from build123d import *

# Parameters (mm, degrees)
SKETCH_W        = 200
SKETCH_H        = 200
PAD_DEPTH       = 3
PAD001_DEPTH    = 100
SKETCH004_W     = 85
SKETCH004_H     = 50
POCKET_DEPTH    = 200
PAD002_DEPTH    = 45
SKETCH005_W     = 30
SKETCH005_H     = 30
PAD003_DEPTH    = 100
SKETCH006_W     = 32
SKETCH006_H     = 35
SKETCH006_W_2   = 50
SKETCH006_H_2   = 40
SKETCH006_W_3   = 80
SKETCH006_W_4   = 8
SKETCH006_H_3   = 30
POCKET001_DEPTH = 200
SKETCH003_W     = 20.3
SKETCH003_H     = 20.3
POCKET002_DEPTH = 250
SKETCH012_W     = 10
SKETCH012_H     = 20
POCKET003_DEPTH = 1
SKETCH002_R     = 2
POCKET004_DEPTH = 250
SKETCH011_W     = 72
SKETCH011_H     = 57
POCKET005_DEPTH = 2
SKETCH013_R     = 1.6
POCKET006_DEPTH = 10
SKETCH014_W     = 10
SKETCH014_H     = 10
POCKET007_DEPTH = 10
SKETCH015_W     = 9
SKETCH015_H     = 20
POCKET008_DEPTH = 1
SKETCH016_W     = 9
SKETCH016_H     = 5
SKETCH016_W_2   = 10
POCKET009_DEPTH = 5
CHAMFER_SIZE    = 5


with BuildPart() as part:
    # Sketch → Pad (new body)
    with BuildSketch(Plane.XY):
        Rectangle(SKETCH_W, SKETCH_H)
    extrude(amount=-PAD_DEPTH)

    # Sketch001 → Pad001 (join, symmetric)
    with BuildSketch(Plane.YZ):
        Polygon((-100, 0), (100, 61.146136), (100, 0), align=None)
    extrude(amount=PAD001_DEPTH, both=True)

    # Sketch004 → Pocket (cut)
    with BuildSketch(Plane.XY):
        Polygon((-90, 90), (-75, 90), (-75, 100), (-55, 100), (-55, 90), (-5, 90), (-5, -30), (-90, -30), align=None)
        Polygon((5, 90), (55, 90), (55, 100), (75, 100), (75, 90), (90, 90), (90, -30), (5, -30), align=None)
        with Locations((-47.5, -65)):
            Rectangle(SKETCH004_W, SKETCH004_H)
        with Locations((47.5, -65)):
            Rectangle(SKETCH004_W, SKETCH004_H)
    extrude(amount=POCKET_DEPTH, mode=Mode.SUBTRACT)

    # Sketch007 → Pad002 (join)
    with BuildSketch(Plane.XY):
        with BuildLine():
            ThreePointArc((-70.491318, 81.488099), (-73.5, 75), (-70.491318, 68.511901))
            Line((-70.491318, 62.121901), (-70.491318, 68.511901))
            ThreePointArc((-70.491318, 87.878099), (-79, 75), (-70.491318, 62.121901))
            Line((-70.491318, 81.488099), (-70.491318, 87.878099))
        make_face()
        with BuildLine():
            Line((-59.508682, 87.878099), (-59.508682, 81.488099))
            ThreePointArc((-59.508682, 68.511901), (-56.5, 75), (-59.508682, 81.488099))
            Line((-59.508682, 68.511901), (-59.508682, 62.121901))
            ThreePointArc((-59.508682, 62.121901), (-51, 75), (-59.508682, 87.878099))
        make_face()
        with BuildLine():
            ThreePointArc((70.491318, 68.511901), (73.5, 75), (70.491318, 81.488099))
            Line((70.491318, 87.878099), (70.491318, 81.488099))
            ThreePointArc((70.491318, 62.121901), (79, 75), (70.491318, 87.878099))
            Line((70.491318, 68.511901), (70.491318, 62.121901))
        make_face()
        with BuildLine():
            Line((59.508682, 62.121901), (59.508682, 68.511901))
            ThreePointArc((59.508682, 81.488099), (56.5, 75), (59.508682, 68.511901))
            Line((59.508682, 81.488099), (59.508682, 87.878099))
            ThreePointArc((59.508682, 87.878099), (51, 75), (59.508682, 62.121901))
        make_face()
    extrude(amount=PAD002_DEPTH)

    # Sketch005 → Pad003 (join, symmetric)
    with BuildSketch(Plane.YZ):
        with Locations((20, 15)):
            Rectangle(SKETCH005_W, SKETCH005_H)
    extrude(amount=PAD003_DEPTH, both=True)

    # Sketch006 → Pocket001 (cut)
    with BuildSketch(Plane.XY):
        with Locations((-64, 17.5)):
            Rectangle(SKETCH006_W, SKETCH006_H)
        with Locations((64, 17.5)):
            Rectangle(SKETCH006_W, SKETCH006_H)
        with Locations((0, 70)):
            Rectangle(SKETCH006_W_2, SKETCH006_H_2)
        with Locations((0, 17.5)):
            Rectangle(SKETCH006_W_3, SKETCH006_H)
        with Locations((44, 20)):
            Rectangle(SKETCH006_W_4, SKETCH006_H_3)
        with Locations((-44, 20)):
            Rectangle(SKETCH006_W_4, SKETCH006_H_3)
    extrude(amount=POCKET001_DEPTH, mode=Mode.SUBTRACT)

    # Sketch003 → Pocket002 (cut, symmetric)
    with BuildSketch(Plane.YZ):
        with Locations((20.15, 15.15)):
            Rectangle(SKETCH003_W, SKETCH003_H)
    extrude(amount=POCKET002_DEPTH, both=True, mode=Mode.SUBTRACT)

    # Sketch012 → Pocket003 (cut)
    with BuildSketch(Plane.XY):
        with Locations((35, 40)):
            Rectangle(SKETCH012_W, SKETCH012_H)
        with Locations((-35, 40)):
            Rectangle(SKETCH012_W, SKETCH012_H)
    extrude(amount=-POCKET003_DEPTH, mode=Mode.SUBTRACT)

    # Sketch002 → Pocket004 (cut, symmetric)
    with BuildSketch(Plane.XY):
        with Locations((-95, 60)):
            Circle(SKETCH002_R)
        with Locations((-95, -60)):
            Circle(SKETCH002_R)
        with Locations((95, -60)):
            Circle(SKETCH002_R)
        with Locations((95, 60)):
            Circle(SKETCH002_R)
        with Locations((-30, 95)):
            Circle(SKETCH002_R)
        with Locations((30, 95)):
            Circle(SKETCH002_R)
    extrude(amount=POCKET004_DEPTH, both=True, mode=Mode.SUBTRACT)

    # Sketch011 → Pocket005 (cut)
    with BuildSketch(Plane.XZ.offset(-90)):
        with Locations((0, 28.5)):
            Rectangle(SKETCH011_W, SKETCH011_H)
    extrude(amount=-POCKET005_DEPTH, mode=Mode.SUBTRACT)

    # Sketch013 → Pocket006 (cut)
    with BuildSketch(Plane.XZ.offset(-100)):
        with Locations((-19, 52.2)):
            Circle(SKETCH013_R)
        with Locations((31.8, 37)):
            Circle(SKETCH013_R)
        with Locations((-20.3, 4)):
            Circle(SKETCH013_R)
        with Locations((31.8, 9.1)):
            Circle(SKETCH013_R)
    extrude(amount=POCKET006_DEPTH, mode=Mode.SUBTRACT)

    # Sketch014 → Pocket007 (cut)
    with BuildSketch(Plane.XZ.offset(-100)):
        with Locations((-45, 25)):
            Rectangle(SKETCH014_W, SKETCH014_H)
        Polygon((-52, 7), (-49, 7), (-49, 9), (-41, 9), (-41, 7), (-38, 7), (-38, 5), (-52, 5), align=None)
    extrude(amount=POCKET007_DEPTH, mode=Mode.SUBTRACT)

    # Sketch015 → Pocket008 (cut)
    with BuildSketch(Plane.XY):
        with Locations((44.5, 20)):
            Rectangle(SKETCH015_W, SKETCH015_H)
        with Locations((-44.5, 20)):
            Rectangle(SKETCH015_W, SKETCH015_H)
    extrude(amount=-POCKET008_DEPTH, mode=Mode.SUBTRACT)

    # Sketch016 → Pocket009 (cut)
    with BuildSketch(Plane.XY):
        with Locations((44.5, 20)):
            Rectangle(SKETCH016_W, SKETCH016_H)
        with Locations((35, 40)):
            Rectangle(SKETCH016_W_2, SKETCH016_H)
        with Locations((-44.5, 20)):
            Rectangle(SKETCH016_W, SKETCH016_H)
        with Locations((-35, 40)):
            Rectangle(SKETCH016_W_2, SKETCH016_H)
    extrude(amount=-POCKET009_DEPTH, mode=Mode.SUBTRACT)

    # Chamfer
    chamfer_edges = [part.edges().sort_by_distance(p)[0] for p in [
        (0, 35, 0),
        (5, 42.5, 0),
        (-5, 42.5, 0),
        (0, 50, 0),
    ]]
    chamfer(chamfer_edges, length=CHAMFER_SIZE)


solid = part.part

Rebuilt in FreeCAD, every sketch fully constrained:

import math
import FreeCAD as App
import Part
import Sketcher
Q = App.Units.Quantity


def edges_at(feature, points):
    """Names of the edges that pass closest to the given points."""
    edges = feature.Shape.Edges
    near = lambda p: min(range(len(edges)), key=lambda i: edges[i].distToShape(Part.Vertex(*p))[0])
    return sorted({f"Edge{near(p) + 1}" for p in points})


def add_polygon(sketch, points):
    """Adds a closed chain of lines whose ends are joined by coincident constraints."""
    first, n = sketch.GeometryCount, len(points)
    for a, b in zip(points, points[1:] + points[:1]):
        sketch.addGeometry(Part.LineSegment(App.Vector(*a, 0), App.Vector(*b, 0)), False)
    for i in range(n):
        sketch.addConstraint(Sketcher.Constraint("Coincident", first + i, 2, first + (i + 1) % n, 1))

doc = App.newDocument("Part")
body = doc.addObject("PartDesign::Body", "Body")

# Sketch on XY plane
sketch1 = body.newObject("Sketcher::SketchObject", "Sketch")
sketch1.AttachmentSupport = (doc.getObject("XY_Plane"), [""])
sketch1.MapMode = "FlatFace"
add_polygon(sketch1, [(-100, 100), (-100, -100), (100, -100), (100, 100)])  # lines 0-3
sketch1.addConstraint(Sketcher.Constraint("Vertical", 0))
sketch1.addConstraint(Sketcher.Constraint("Horizontal", 1))
sketch1.addConstraint(Sketcher.Constraint("Vertical", 2))
sketch1.addConstraint(Sketcher.Constraint("Horizontal", 3))
sketch1.addConstraint(Sketcher.Constraint("Symmetric", 0, 2, 2, 2, -1, 1))
sketch1.addConstraint(Sketcher.Constraint("Equal", 3, 0))
sketch1.addConstraint(Sketcher.Constraint("DistanceX", 1, 1, 1, 2, Q("200 mm")))
pad1 = body.newObject("PartDesign::Pad", "Pad")
pad1.Profile = sketch1
pad1.Length = 3
pad1.Reversed = True

# Sketch on YZ plane
sketch2 = body.newObject("Sketcher::SketchObject", "Sketch001")
sketch2.AttachmentSupport = (doc.getObject("YZ_Plane"), [""])
sketch2.MapMode = "FlatFace"
add_polygon(sketch2, [(100, 61), (-100, 0), (100, 0)])  # lines 0-2
sketch2.addConstraint(Sketcher.Constraint("Horizontal", 1))
sketch2.addConstraint(Sketcher.Constraint("Vertical", 2))
sketch2.addConstraint(Sketcher.Constraint("Symmetric", 0, 2, 1, 2, -1, 1))
sketch2.addConstraint(Sketcher.Constraint("DistanceX", 1, 1, 1, 2, Q("200 mm")))
sketch2.addConstraint(Sketcher.Constraint("Angle", 0, Q("-163 deg")))
pad2 = body.newObject("PartDesign::Pad", "Pad001")
pad2.Profile = sketch2
pad2.Length = 200
pad2.Midplane = True

# Sketch on XY plane
sketch3 = body.newObject("Sketcher::SketchObject", "Sketch002")
sketch3.AttachmentSupport = (doc.getObject("XY_Plane"), [""])
sketch3.MapMode = "FlatFace"
add_polygon(sketch3, [(-75, 90), (-90, 90), (-90, -30), (-5, -30), (-5, 90), (-55, 90), (-55, 100), (-75, 100)])  # lines 0-7
add_polygon(sketch3, [(55, 90), (5, 90), (5, -30), (90, -30), (90, 90), (75, 90), (75, 100), (55, 100)])  # lines 8-15
add_polygon(sketch3, [(-90, -40), (-90, -90), (-5, -90), (-5, -40)])  # lines 16-19
add_polygon(sketch3, [(5, -40), (5, -90), (90, -90), (90, -40)])  # lines 20-23
sketch3.addConstraint(Sketcher.Constraint("Horizontal", 0))
sketch3.addConstraint(Sketcher.Constraint("Vertical", 1))
sketch3.addConstraint(Sketcher.Constraint("Horizontal", 2))
sketch3.addConstraint(Sketcher.Constraint("Vertical", 3))
sketch3.addConstraint(Sketcher.Constraint("Horizontal", 4))
sketch3.addConstraint(Sketcher.Constraint("Vertical", 5))
sketch3.addConstraint(Sketcher.Constraint("Horizontal", 6))
sketch3.addConstraint(Sketcher.Constraint("Vertical", 7))
sketch3.addConstraint(Sketcher.Constraint("Horizontal", 8))
sketch3.addConstraint(Sketcher.Constraint("Vertical", 9))
sketch3.addConstraint(Sketcher.Constraint("Horizontal", 10))
sketch3.addConstraint(Sketcher.Constraint("Vertical", 11))
sketch3.addConstraint(Sketcher.Constraint("Horizontal", 12))
sketch3.addConstraint(Sketcher.Constraint("Vertical", 13))
sketch3.addConstraint(Sketcher.Constraint("Horizontal", 14))
sketch3.addConstraint(Sketcher.Constraint("Vertical", 15))
sketch3.addConstraint(Sketcher.Constraint("Vertical", 16))
sketch3.addConstraint(Sketcher.Constraint("Horizontal", 17))
sketch3.addConstraint(Sketcher.Constraint("Vertical", 18))
sketch3.addConstraint(Sketcher.Constraint("Horizontal", 19))
sketch3.addConstraint(Sketcher.Constraint("Vertical", 20))
sketch3.addConstraint(Sketcher.Constraint("Horizontal", 21))
sketch3.addConstraint(Sketcher.Constraint("Vertical", 22))
sketch3.addConstraint(Sketcher.Constraint("Horizontal", 23))
sketch3.addConstraint(Sketcher.Constraint("Symmetric", 11, 2, 16, 2, -1, 1))
sketch3.addConstraint(Sketcher.Constraint("Symmetric", 8, 2, 17, 2, -1, 1))
sketch3.addConstraint(Sketcher.Constraint("Symmetric", 3, 2, 20, 2, -1, 1))
sketch3.addConstraint(Sketcher.Constraint("Symmetric", 0, 2, 21, 2, -1, 1))
sketch3.addConstraint(Sketcher.Constraint("Symmetric", 3, 2, 8, 2, -2))
sketch3.addConstraint(Sketcher.Constraint("Symmetric", 1, 2, 10, 2, -2))
sketch3.addConstraint(Sketcher.Constraint("Symmetric", 6, 2, 13, 2, -2))
sketch3.addConstraint(Sketcher.Constraint("Horizontal", 19, 2, 22, 2))
sketch3.addConstraint(Sketcher.Constraint("Equal", 4, 8))
sketch3.addConstraint(Sketcher.Constraint("Equal", 8, 16))
sketch3.addConstraint(Sketcher.Constraint("DistanceX", 0, 2, 0, 1, Q("15 mm")))
sketch3.addConstraint(Sketcher.Constraint("DistanceX", 2, 1, 2, 2, Q("85 mm")))
sketch3.addConstraint(Sketcher.Constraint("DistanceX", 4, 2, 4, 1, Q("50 mm")))
sketch3.addConstraint(Sketcher.Constraint("DistanceY", 1, 2, 1, 1, Q("120 mm")))
sketch3.addConstraint(Sketcher.Constraint("DistanceY", 5, 1, 5, 2, Q("10 mm")))
sketch3.addConstraint(Sketcher.Constraint("DistanceX", 0, 2, -1, 1, Q("90 mm")))
sketch3.addConstraint(Sketcher.Constraint("DistanceY", -1, 1, 0, 2, Q("90 mm")))
pocket1 = body.newObject("PartDesign::Pocket", "Pocket")
pocket1.Profile = sketch3
pocket1.Length = 200
pocket1.Reversed = True

# Sketch on XY plane
sketch4 = body.newObject("Sketcher::SketchObject", "Sketch003")
sketch4.AttachmentSupport = (doc.getObject("XY_Plane"), [""])
sketch4.MapMode = "FlatFace"
sketch4.addGeometry(Part.ArcOfCircle(Part.Circle(App.Vector(-65, 75, 0), App.Vector(0, 0, 1), 9), math.radians(130), math.radians(230)), False)
sketch4.addGeometry(Part.LineSegment(App.Vector(-70, 81, 0), App.Vector(-70, 88, 0)), False)
sketch4.addGeometry(Part.ArcOfCircle(Part.Circle(App.Vector(-65, 75, 0), App.Vector(0, 0, 1), 14), math.radians(113), math.radians(247)), False)
sketch4.addGeometry(Part.LineSegment(App.Vector(-70, 62, 0), App.Vector(-70, 69, 0)), False)
sketch4.addGeometry(Part.LineSegment(App.Vector(-60, 88, 0), App.Vector(-60, 81, 0)), False)
sketch4.addGeometry(Part.ArcOfCircle(Part.Circle(App.Vector(-65, 75, 0), App.Vector(0, 0, 1), 9), math.radians(-50), math.radians(50)), False)
sketch4.addGeometry(Part.LineSegment(App.Vector(-60, 69, 0), App.Vector(-60, 62, 0)), False)
sketch4.addGeometry(Part.ArcOfCircle(Part.Circle(App.Vector(-65, 75, 0), App.Vector(0, 0, 1), 14), math.radians(-67), math.radians(67)), False)
sketch4.addGeometry(Part.ArcOfCircle(Part.Circle(App.Vector(65, 75, 0), App.Vector(0, 0, 1), 9), math.radians(-50), math.radians(50)), False)
sketch4.addGeometry(Part.LineSegment(App.Vector(70, 69, 0), App.Vector(70, 62, 0)), False)
sketch4.addGeometry(Part.ArcOfCircle(Part.Circle(App.Vector(65, 75, 0), App.Vector(0, 0, 1), 14), math.radians(-67), math.radians(67)), False)
sketch4.addGeometry(Part.LineSegment(App.Vector(70, 88, 0), App.Vector(70, 81, 0)), False)
sketch4.addGeometry(Part.LineSegment(App.Vector(60, 62, 0), App.Vector(60, 69, 0)), False)
sketch4.addGeometry(Part.ArcOfCircle(Part.Circle(App.Vector(65, 75, 0), App.Vector(0, 0, 1), 9), math.radians(130), math.radians(230)), False)
sketch4.addGeometry(Part.LineSegment(App.Vector(60, 81, 0), App.Vector(60, 88, 0)), False)
sketch4.addGeometry(Part.ArcOfCircle(Part.Circle(App.Vector(65, 75, 0), App.Vector(0, 0, 1), 14), math.radians(113), math.radians(247)), False)
sketch4.addConstraint(Sketcher.Constraint("Coincident", 0, 1, 1, 1))
sketch4.addConstraint(Sketcher.Constraint("Coincident", 1, 2, 2, 1))
sketch4.addConstraint(Sketcher.Constraint("Coincident", 2, 2, 3, 1))
sketch4.addConstraint(Sketcher.Constraint("Coincident", 3, 2, 0, 2))
sketch4.addConstraint(Sketcher.Constraint("Coincident", 4, 2, 5, 2))
sketch4.addConstraint(Sketcher.Constraint("Coincident", 5, 1, 6, 1))
sketch4.addConstraint(Sketcher.Constraint("Coincident", 6, 2, 7, 1))
sketch4.addConstraint(Sketcher.Constraint("Coincident", 7, 2, 4, 1))
sketch4.addConstraint(Sketcher.Constraint("Coincident", 8, 1, 9, 1))
sketch4.addConstraint(Sketcher.Constraint("Coincident", 9, 2, 10, 1))
sketch4.addConstraint(Sketcher.Constraint("Coincident", 10, 2, 11, 1))
sketch4.addConstraint(Sketcher.Constraint("Coincident", 11, 2, 8, 2))
sketch4.addConstraint(Sketcher.Constraint("Coincident", 12, 2, 13, 2))
sketch4.addConstraint(Sketcher.Constraint("Coincident", 13, 1, 14, 1))
sketch4.addConstraint(Sketcher.Constraint("Coincident", 14, 2, 15, 1))
sketch4.addConstraint(Sketcher.Constraint("Coincident", 15, 2, 12, 1))
sketch4.addConstraint(Sketcher.Constraint("Vertical", 1))
sketch4.addConstraint(Sketcher.Constraint("Vertical", 3))
sketch4.addConstraint(Sketcher.Constraint("Vertical", 4))
sketch4.addConstraint(Sketcher.Constraint("Vertical", 6))
sketch4.addConstraint(Sketcher.Constraint("Vertical", 9))
sketch4.addConstraint(Sketcher.Constraint("Vertical", 11))
sketch4.addConstraint(Sketcher.Constraint("Vertical", 12))
sketch4.addConstraint(Sketcher.Constraint("Vertical", 14))
sketch4.addConstraint(Sketcher.Constraint("Coincident", 2, 3, 0, 3))
sketch4.addConstraint(Sketcher.Constraint("Coincident", 5, 3, 0, 3))
sketch4.addConstraint(Sketcher.Constraint("Coincident", 7, 3, 0, 3))
sketch4.addConstraint(Sketcher.Constraint("Coincident", 10, 3, 8, 3))
sketch4.addConstraint(Sketcher.Constraint("Coincident", 13, 3, 8, 3))
sketch4.addConstraint(Sketcher.Constraint("Coincident", 15, 3, 8, 3))
sketch4.addConstraint(Sketcher.Constraint("Equal", 0, 5))
sketch4.addConstraint(Sketcher.Constraint("Equal", 2, 7))
sketch4.addConstraint(Sketcher.Constraint("Equal", 5, 8))
sketch4.addConstraint(Sketcher.Constraint("Equal", 7, 10))
sketch4.addConstraint(Sketcher.Constraint("Equal", 8, 13))
sketch4.addConstraint(Sketcher.Constraint("Equal", 10, 15))
sketch4.addConstraint(Sketcher.Constraint("Symmetric", 0, 3, 8, 3, -2))
sketch4.addConstraint(Sketcher.Constraint("Horizontal", 0, 1, 4, 2))
sketch4.addConstraint(Sketcher.Constraint("Horizontal", 3, 2, 5, 1))
sketch4.addConstraint(Sketcher.Constraint("Horizontal", 5, 1, 8, 1))
sketch4.addConstraint(Sketcher.Constraint("Horizontal", 7, 2, 10, 2))
sketch4.addConstraint(Sketcher.Constraint("Horizontal", 8, 1, 12, 2))
sketch4.addConstraint(Sketcher.Constraint("Horizontal", 11, 2, 13, 1))
sketch4.addConstraint(Sketcher.Constraint("Vertical", 1, 2, 2, 2))
sketch4.addConstraint(Sketcher.Constraint("Radius", 2, Q("14 mm")))
sketch4.addConstraint(Sketcher.Constraint("Radius", 0, Q("8.5 mm")))
sketch4.addConstraint(Sketcher.Constraint("DistanceX", 0, 3, -1, 1, Q("65 mm")))
sketch4.addConstraint(Sketcher.Constraint("DistanceY", -1, 1, 0, 3, Q("75 mm")))
sketch4.addConstraint(Sketcher.Constraint("DistanceY", 1, 1, 1, 2, Q("6.39 mm")))
pad3 = body.newObject("PartDesign::Pad", "Pad002")
pad3.Profile = sketch4
pad3.Length = 45

# Sketch on YZ plane
sketch5 = body.newObject("Sketcher::SketchObject", "Sketch004")
sketch5.AttachmentSupport = (doc.getObject("YZ_Plane"), [""])
sketch5.MapMode = "FlatFace"
add_polygon(sketch5, [(5, 30), (5, 0), (35, 0), (35, 30)])  # lines 0-3
sketch5.addConstraint(Sketcher.Constraint("Vertical", 0))
sketch5.addConstraint(Sketcher.Constraint("Horizontal", 1))
sketch5.addConstraint(Sketcher.Constraint("Vertical", 2))
sketch5.addConstraint(Sketcher.Constraint("Horizontal", 3))
sketch5.addConstraint(Sketcher.Constraint("PointOnObject", 0, 2, -1))
sketch5.addConstraint(Sketcher.Constraint("Equal", 3, 0))
sketch5.addConstraint(Sketcher.Constraint("DistanceX", 1, 1, 1, 2, Q("30 mm")))
sketch5.addConstraint(Sketcher.Constraint("DistanceX", -1, 1, 0, 2, Q("5 mm")))
pad4 = body.newObject("PartDesign::Pad", "Pad003")
pad4.Profile = sketch5
pad4.Length = 200
pad4.Midplane = True

# Sketch on XY plane
sketch6 = body.newObject("Sketcher::SketchObject", "Sketch005")
sketch6.AttachmentSupport = (doc.getObject("XY_Plane"), [""])
sketch6.MapMode = "FlatFace"
add_polygon(sketch6, [(-80, 35), (-80, 0), (-48, 0), (-48, 5), (-40, 5), (-40, 0), (40, 0), (40, 5), (48, 5), (48, 0), (80, 0), (80, 35)])  # lines 0-11
add_polygon(sketch6, [(-25, 90), (-25, 50), (25, 50), (25, 90)])  # lines 12-15
sketch6.addConstraint(Sketcher.Constraint("Vertical", 0))
sketch6.addConstraint(Sketcher.Constraint("Horizontal", 1))
sketch6.addConstraint(Sketcher.Constraint("Vertical", 2))
sketch6.addConstraint(Sketcher.Constraint("Horizontal", 3))
sketch6.addConstraint(Sketcher.Constraint("Vertical", 4))
sketch6.addConstraint(Sketcher.Constraint("Horizontal", 5))
sketch6.addConstraint(Sketcher.Constraint("Vertical", 6))
sketch6.addConstraint(Sketcher.Constraint("Horizontal", 7))
sketch6.addConstraint(Sketcher.Constraint("Vertical", 8))
sketch6.addConstraint(Sketcher.Constraint("Horizontal", 9))
sketch6.addConstraint(Sketcher.Constraint("Vertical", 10))
sketch6.addConstraint(Sketcher.Constraint("Horizontal", 11))
sketch6.addConstraint(Sketcher.Constraint("Vertical", 12))
sketch6.addConstraint(Sketcher.Constraint("Horizontal", 13))
sketch6.addConstraint(Sketcher.Constraint("Vertical", 14))
sketch6.addConstraint(Sketcher.Constraint("Horizontal", 15))
sketch6.addConstraint(Sketcher.Constraint("Symmetric", 4, 2, 5, 2, -1, 1))
sketch6.addConstraint(Sketcher.Constraint("Symmetric", 1, 2, 8, 2, -1, 1))
sketch6.addConstraint(Sketcher.Constraint("Symmetric", 0, 2, 9, 2, -2))
sketch6.addConstraint(Sketcher.Constraint("Horizontal", 3, 2, 6, 2))
sketch6.addConstraint(Sketcher.Constraint("DistanceX", 1, 1, 1, 2, Q("32 mm")))
sketch6.addConstraint(Sketcher.Constraint("DistanceX", 3, 1, 3, 2, Q("8 mm")))
sketch6.addConstraint(Sketcher.Constraint("DistanceX", 5, 1, 5, 2, Q("80 mm")))
sketch6.addConstraint(Sketcher.Constraint("DistanceX", 13, 1, 13, 2, Q("50 mm")))
sketch6.addConstraint(Sketcher.Constraint("DistanceY", 0, 2, 0, 1, Q("35 mm")))
sketch6.addConstraint(Sketcher.Constraint("DistanceY", 2, 1, 2, 2, Q("5 mm")))
sketch6.addConstraint(Sketcher.Constraint("DistanceY", 12, 2, 12, 1, Q("40 mm")))
sketch6.addConstraint(Sketcher.Constraint("DistanceX", 12, 2, -1, 1, Q("25 mm")))
sketch6.addConstraint(Sketcher.Constraint("DistanceY", -1, 1, 12, 2, Q("50 mm")))
pocket2 = body.newObject("PartDesign::Pocket", "Pocket001")
pocket2.Profile = sketch6
pocket2.Length = 200
pocket2.Reversed = True

# Sketch on YZ plane
sketch7 = body.newObject("Sketcher::SketchObject", "Sketch006")
sketch7.AttachmentSupport = (doc.getObject("YZ_Plane"), [""])
sketch7.MapMode = "FlatFace"
add_polygon(sketch7, [(10, 25), (10, 5), (30, 5), (30, 25)])  # lines 0-3
sketch7.addConstraint(Sketcher.Constraint("Vertical", 0))
sketch7.addConstraint(Sketcher.Constraint("Horizontal", 1))
sketch7.addConstraint(Sketcher.Constraint("Vertical", 2))
sketch7.addConstraint(Sketcher.Constraint("Horizontal", 3))
sketch7.addConstraint(Sketcher.Constraint("Equal", 3, 0))
sketch7.addConstraint(Sketcher.Constraint("DistanceX", 1, 1, 1, 2, Q("20.3 mm")))
sketch7.addConstraint(Sketcher.Constraint("DistanceX", -1, 1, 0, 2, Q("10 mm")))
sketch7.addConstraint(Sketcher.Constraint("DistanceY", -1, 1, 0, 2, Q("5 mm")))
pocket3 = body.newObject("PartDesign::Pocket", "Pocket002")
pocket3.Profile = sketch7
pocket3.Length = 500
pocket3.Midplane = True

# Sketch on XY plane
sketch8 = body.newObject("Sketcher::SketchObject", "Sketch007")
sketch8.AttachmentSupport = (doc.getObject("XY_Plane"), [""])
sketch8.MapMode = "FlatFace"
add_polygon(sketch8, [(30, 50), (30, 30), (40, 30), (40, 50)])  # lines 0-3
add_polygon(sketch8, [(-40, 50), (-40, 30), (-30, 30), (-30, 50)])  # lines 4-7
sketch8.addConstraint(Sketcher.Constraint("Vertical", 0))
sketch8.addConstraint(Sketcher.Constraint("Horizontal", 1))
sketch8.addConstraint(Sketcher.Constraint("Vertical", 2))
sketch8.addConstraint(Sketcher.Constraint("Horizontal", 3))
sketch8.addConstraint(Sketcher.Constraint("Vertical", 4))
sketch8.addConstraint(Sketcher.Constraint("Horizontal", 5))
sketch8.addConstraint(Sketcher.Constraint("Vertical", 6))
sketch8.addConstraint(Sketcher.Constraint("Horizontal", 7))
sketch8.addConstraint(Sketcher.Constraint("Symmetric", 1, 2, 4, 2, -2))
sketch8.addConstraint(Sketcher.Constraint("Symmetric", 3, 2, 6, 2, -2))
sketch8.addConstraint(Sketcher.Constraint("DistanceX", 1, 1, 1, 2, Q("10 mm")))
sketch8.addConstraint(Sketcher.Constraint("DistanceY", 0, 2, 0, 1, Q("20 mm")))
sketch8.addConstraint(Sketcher.Constraint("DistanceX", -1, 1, 0, 2, Q("30 mm")))
sketch8.addConstraint(Sketcher.Constraint("DistanceY", -1, 1, 0, 2, Q("30 mm")))
pocket4 = body.newObject("PartDesign::Pocket", "Pocket003")
pocket4.Profile = sketch8
pocket4.Length = 1

# Sketch on XY plane
sketch9 = body.newObject("Sketcher::SketchObject", "Sketch008")
sketch9.AttachmentSupport = (doc.getObject("XY_Plane"), [""])
sketch9.MapMode = "FlatFace"
sketch9.addGeometry(Part.Circle(App.Vector(-95, 60, 0), App.Vector(0, 0, 1), 2), False)
sketch9.addGeometry(Part.Circle(App.Vector(-95, -60, 0), App.Vector(0, 0, 1), 2), False)
sketch9.addGeometry(Part.Circle(App.Vector(95, -60, 0), App.Vector(0, 0, 1), 2), False)
sketch9.addGeometry(Part.Circle(App.Vector(95, 60, 0), App.Vector(0, 0, 1), 2), False)
sketch9.addGeometry(Part.Circle(App.Vector(-30, 95, 0), App.Vector(0, 0, 1), 2), False)
sketch9.addGeometry(Part.Circle(App.Vector(30, 95, 0), App.Vector(0, 0, 1), 2), False)
sketch9.addConstraint(Sketcher.Constraint("Equal", 0, 1))
sketch9.addConstraint(Sketcher.Constraint("Equal", 1, 2))
sketch9.addConstraint(Sketcher.Constraint("Equal", 2, 3))
sketch9.addConstraint(Sketcher.Constraint("Equal", 3, 4))
sketch9.addConstraint(Sketcher.Constraint("Equal", 4, 5))
sketch9.addConstraint(Sketcher.Constraint("Symmetric", 0, 3, 2, 3, -1, 1))
sketch9.addConstraint(Sketcher.Constraint("Symmetric", 1, 3, 3, 3, -1, 1))
sketch9.addConstraint(Sketcher.Constraint("Symmetric", 1, 3, 2, 3, -2))
sketch9.addConstraint(Sketcher.Constraint("Symmetric", 4, 3, 5, 3, -2))
sketch9.addConstraint(Sketcher.Constraint("Diameter", 0, Q("4 mm")))
sketch9.addConstraint(Sketcher.Constraint("DistanceX", 0, 3, -1, 1, Q("95 mm")))
sketch9.addConstraint(Sketcher.Constraint("DistanceY", -1, 1, 0, 3, Q("60 mm")))
sketch9.addConstraint(Sketcher.Constraint("DistanceX", 4, 3, -1, 1, Q("30 mm")))
sketch9.addConstraint(Sketcher.Constraint("DistanceY", -1, 1, 4, 3, Q("95 mm")))
pocket5 = body.newObject("PartDesign::Pocket", "Pocket004")
pocket5.Profile = sketch9
pocket5.Length = 500
pocket5.Midplane = True

# Sketch on XZ plane
sketch10 = body.newObject("Sketcher::SketchObject", "Sketch009")
sketch10.AttachmentSupport = (doc.getObject("XZ_Plane"), [""])
sketch10.MapMode = "FlatFace"
sketch10.AttachmentOffset = App.Placement(App.Vector(0, 0, -90), App.Rotation())
add_polygon(sketch10, [(-36, 57), (-36, 0), (36, 0), (36, 57)])  # lines 0-3
sketch10.addConstraint(Sketcher.Constraint("Vertical", 0))
sketch10.addConstraint(Sketcher.Constraint("Horizontal", 1))
sketch10.addConstraint(Sketcher.Constraint("Vertical", 2))
sketch10.addConstraint(Sketcher.Constraint("Horizontal", 3))
sketch10.addConstraint(Sketcher.Constraint("Symmetric", 0, 2, 1, 2, -1, 1))
sketch10.addConstraint(Sketcher.Constraint("DistanceX", 1, 1, 1, 2, Q("72 mm")))
sketch10.addConstraint(Sketcher.Constraint("DistanceY", 0, 2, 0, 1, Q("57 mm")))
pocket6 = body.newObject("PartDesign::Pocket", "Pocket005")
pocket6.Profile = sketch10
pocket6.Length = 2

# Sketch on XZ plane
sketch11 = body.newObject("Sketcher::SketchObject", "Sketch010")
sketch11.AttachmentSupport = (doc.getObject("XZ_Plane"), [""])
sketch11.MapMode = "FlatFace"
sketch11.AttachmentOffset = App.Placement(App.Vector(0, 0, -100), App.Rotation())
sketch11.addGeometry(Part.Circle(App.Vector(-19, 52.2, 0), App.Vector(0, 0, 1), 1.6), False)
sketch11.addGeometry(Part.Circle(App.Vector(31.8, 37, 0), App.Vector(0, 0, 1), 1.6), False)
sketch11.addGeometry(Part.Circle(App.Vector(-20.3, 4, 0), App.Vector(0, 0, 1), 1.6), False)
sketch11.addGeometry(Part.Circle(App.Vector(31.8, 9.1, 0), App.Vector(0, 0, 1), 1.6), False)
sketch11.addConstraint(Sketcher.Constraint("Equal", 0, 1))
sketch11.addConstraint(Sketcher.Constraint("Equal", 1, 2))
sketch11.addConstraint(Sketcher.Constraint("Equal", 2, 3))
sketch11.addConstraint(Sketcher.Constraint("Vertical", 1, 3, 3, 3))
sketch11.addConstraint(Sketcher.Constraint("Diameter", 0, Q("3.2 mm")))
sketch11.addConstraint(Sketcher.Constraint("DistanceX", 0, 3, -1, 1, Q("19 mm")))
sketch11.addConstraint(Sketcher.Constraint("DistanceY", -1, 1, 1, 3, Q("37 mm")))
sketch11.addConstraint(Sketcher.Constraint("DistanceY", -1, 1, 2, 3, Q("4 mm")))
sketch11.addConstraint(Sketcher.Constraint("DistanceY", -1, 1, 0, 3, Q("52.2 mm")))
sketch11.addConstraint(Sketcher.Constraint("DistanceX", -1, 1, 1, 3, Q("31.8 mm")))
sketch11.addConstraint(Sketcher.Constraint("DistanceX", 2, 3, -1, 1, Q("20.3 mm")))
sketch11.addConstraint(Sketcher.Constraint("DistanceY", -1, 1, 3, 3, Q("9.1 mm")))
pocket7 = body.newObject("PartDesign::Pocket", "Pocket006")
pocket7.Profile = sketch11
pocket7.Length = 10
pocket7.Reversed = True

# Sketch on XZ plane
sketch12 = body.newObject("Sketcher::SketchObject", "Sketch011")
sketch12.AttachmentSupport = (doc.getObject("XZ_Plane"), [""])
sketch12.MapMode = "FlatFace"
sketch12.AttachmentOffset = App.Placement(App.Vector(0, 0, -100), App.Rotation())
add_polygon(sketch12, [(-50, 30), (-50, 20), (-40, 20), (-40, 30)])  # lines 0-3
add_polygon(sketch12, [(-49, 7), (-52, 7), (-52, 5), (-38, 5), (-38, 7), (-41, 7), (-41, 9), (-49, 9)])  # lines 4-11
sketch12.addConstraint(Sketcher.Constraint("Vertical", 0))
sketch12.addConstraint(Sketcher.Constraint("Horizontal", 1))
sketch12.addConstraint(Sketcher.Constraint("Vertical", 2))
sketch12.addConstraint(Sketcher.Constraint("Horizontal", 3))
sketch12.addConstraint(Sketcher.Constraint("Horizontal", 4))
sketch12.addConstraint(Sketcher.Constraint("Vertical", 5))
sketch12.addConstraint(Sketcher.Constraint("Horizontal", 6))
sketch12.addConstraint(Sketcher.Constraint("Vertical", 7))
sketch12.addConstraint(Sketcher.Constraint("Horizontal", 8))
sketch12.addConstraint(Sketcher.Constraint("Vertical", 9))
sketch12.addConstraint(Sketcher.Constraint("Horizontal", 10))
sketch12.addConstraint(Sketcher.Constraint("Vertical", 11))
sketch12.addConstraint(Sketcher.Constraint("Horizontal", 4, 2, 7, 2))
sketch12.addConstraint(Sketcher.Constraint("Equal", 4, 8))
sketch12.addConstraint(Sketcher.Constraint("Equal", 3, 0))
sketch12.addConstraint(Sketcher.Constraint("Equal", 7, 9))
sketch12.addConstraint(Sketcher.Constraint("DistanceX", 1, 1, 1, 2, Q("10 mm")))
sketch12.addConstraint(Sketcher.Constraint("DistanceX", 4, 2, 4, 1, Q("3 mm")))
sketch12.addConstraint(Sketcher.Constraint("DistanceX", 6, 1, 6, 2, Q("14 mm")))
sketch12.addConstraint(Sketcher.Constraint("DistanceY", 5, 2, 5, 1, Q("2 mm")))
sketch12.addConstraint(Sketcher.Constraint("DistanceX", 0, 2, -1, 1, Q("50 mm")))
sketch12.addConstraint(Sketcher.Constraint("DistanceY", -1, 1, 0, 2, Q("20 mm")))
sketch12.addConstraint(Sketcher.Constraint("DistanceX", 4, 2, -1, 1, Q("52 mm")))
sketch12.addConstraint(Sketcher.Constraint("DistanceY", -1, 1, 4, 2, Q("7 mm")))
pocket8 = body.newObject("PartDesign::Pocket", "Pocket007")
pocket8.Profile = sketch12
pocket8.Length = 10
pocket8.Reversed = True

# Sketch on XY plane
sketch13 = body.newObject("Sketcher::SketchObject", "Sketch012")
sketch13.AttachmentSupport = (doc.getObject("XY_Plane"), [""])
sketch13.MapMode = "FlatFace"
add_polygon(sketch13, [(40, 30), (40, 10), (49, 10), (49, 30)])  # lines 0-3
add_polygon(sketch13, [(-49, 30), (-49, 10), (-40, 10), (-40, 30)])  # lines 4-7
sketch13.addConstraint(Sketcher.Constraint("Vertical", 0))
sketch13.addConstraint(Sketcher.Constraint("Horizontal", 1))
sketch13.addConstraint(Sketcher.Constraint("Vertical", 2))
sketch13.addConstraint(Sketcher.Constraint("Horizontal", 3))
sketch13.addConstraint(Sketcher.Constraint("Vertical", 4))
sketch13.addConstraint(Sketcher.Constraint("Horizontal", 5))
sketch13.addConstraint(Sketcher.Constraint("Vertical", 6))
sketch13.addConstraint(Sketcher.Constraint("Horizontal", 7))
sketch13.addConstraint(Sketcher.Constraint("Symmetric", 1, 2, 4, 2, -2))
sketch13.addConstraint(Sketcher.Constraint("Symmetric", 3, 2, 6, 2, -2))
sketch13.addConstraint(Sketcher.Constraint("DistanceX", 1, 1, 1, 2, Q("9 mm")))
sketch13.addConstraint(Sketcher.Constraint("DistanceY", 0, 2, 0, 1, Q("20 mm")))
sketch13.addConstraint(Sketcher.Constraint("DistanceX", -1, 1, 0, 2, Q("40 mm")))
sketch13.addConstraint(Sketcher.Constraint("DistanceY", -1, 1, 0, 2, Q("10 mm")))
pocket9 = body.newObject("PartDesign::Pocket", "Pocket008")
pocket9.Profile = sketch13
pocket9.Length = 1

# Sketch on XY plane
sketch14 = body.newObject("Sketcher::SketchObject", "Sketch013")
sketch14.AttachmentSupport = (doc.getObject("XY_Plane"), [""])
sketch14.MapMode = "FlatFace"
add_polygon(sketch14, [(40, 22), (40, 18), (49, 18), (49, 22)])  # lines 0-3
add_polygon(sketch14, [(30, 42), (30, 38), (40, 38), (40, 42)])  # lines 4-7
add_polygon(sketch14, [(-49, 22), (-49, 18), (-40, 18), (-40, 22)])  # lines 8-11
add_polygon(sketch14, [(-40, 42), (-40, 38), (-30, 38), (-30, 42)])  # lines 12-15
sketch14.addConstraint(Sketcher.Constraint("Vertical", 0))
sketch14.addConstraint(Sketcher.Constraint("Horizontal", 1))
sketch14.addConstraint(Sketcher.Constraint("Vertical", 2))
sketch14.addConstraint(Sketcher.Constraint("Horizontal", 3))
sketch14.addConstraint(Sketcher.Constraint("Vertical", 4))
sketch14.addConstraint(Sketcher.Constraint("Horizontal", 5))
sketch14.addConstraint(Sketcher.Constraint("Vertical", 6))
sketch14.addConstraint(Sketcher.Constraint("Horizontal", 7))
sketch14.addConstraint(Sketcher.Constraint("Vertical", 8))
sketch14.addConstraint(Sketcher.Constraint("Horizontal", 9))
sketch14.addConstraint(Sketcher.Constraint("Vertical", 10))
sketch14.addConstraint(Sketcher.Constraint("Horizontal", 11))
sketch14.addConstraint(Sketcher.Constraint("Vertical", 12))
sketch14.addConstraint(Sketcher.Constraint("Horizontal", 13))
sketch14.addConstraint(Sketcher.Constraint("Vertical", 14))
sketch14.addConstraint(Sketcher.Constraint("Horizontal", 15))
sketch14.addConstraint(Sketcher.Constraint("Symmetric", 1, 2, 8, 2, -2))
sketch14.addConstraint(Sketcher.Constraint("Symmetric", 3, 2, 10, 2, -2))
sketch14.addConstraint(Sketcher.Constraint("Symmetric", 5, 2, 12, 2, -2))
sketch14.addConstraint(Sketcher.Constraint("Symmetric", 7, 2, 14, 2, -2))
sketch14.addConstraint(Sketcher.Constraint("Vertical", 3, 2, 5, 2))
sketch14.addConstraint(Sketcher.Constraint("Equal", 2, 4))
sketch14.addConstraint(Sketcher.Constraint("DistanceX", 1, 1, 1, 2, Q("9 mm")))
sketch14.addConstraint(Sketcher.Constraint("DistanceX", 5, 1, 5, 2, Q("10 mm")))
sketch14.addConstraint(Sketcher.Constraint("DistanceY", 0, 2, 0, 1, Q("5 mm")))
sketch14.addConstraint(Sketcher.Constraint("DistanceX", -1, 1, 0, 2, Q("40 mm")))
sketch14.addConstraint(Sketcher.Constraint("DistanceY", 3, 2, 4, 2, Q("15 mm")))
sketch14.addConstraint(Sketcher.Constraint("DistanceY", -1, 1, 0, 2, Q("17.5 mm")))
pocket10 = body.newObject("PartDesign::Pocket", "Pocket009")
pocket10.Profile = sketch14
pocket10.Length = 5
doc.recompute()

chamfer = body.newObject("PartDesign::Chamfer", "Chamfer")
chamfer.Base = (pocket10, edges_at(pocket10, [
    (0, 35, 0),
    (5, 42.5, 0),
    (-5, 42.5, 0),
    (0, 50, 0),
]))
chamfer.Size = 5

doc.recompute()
